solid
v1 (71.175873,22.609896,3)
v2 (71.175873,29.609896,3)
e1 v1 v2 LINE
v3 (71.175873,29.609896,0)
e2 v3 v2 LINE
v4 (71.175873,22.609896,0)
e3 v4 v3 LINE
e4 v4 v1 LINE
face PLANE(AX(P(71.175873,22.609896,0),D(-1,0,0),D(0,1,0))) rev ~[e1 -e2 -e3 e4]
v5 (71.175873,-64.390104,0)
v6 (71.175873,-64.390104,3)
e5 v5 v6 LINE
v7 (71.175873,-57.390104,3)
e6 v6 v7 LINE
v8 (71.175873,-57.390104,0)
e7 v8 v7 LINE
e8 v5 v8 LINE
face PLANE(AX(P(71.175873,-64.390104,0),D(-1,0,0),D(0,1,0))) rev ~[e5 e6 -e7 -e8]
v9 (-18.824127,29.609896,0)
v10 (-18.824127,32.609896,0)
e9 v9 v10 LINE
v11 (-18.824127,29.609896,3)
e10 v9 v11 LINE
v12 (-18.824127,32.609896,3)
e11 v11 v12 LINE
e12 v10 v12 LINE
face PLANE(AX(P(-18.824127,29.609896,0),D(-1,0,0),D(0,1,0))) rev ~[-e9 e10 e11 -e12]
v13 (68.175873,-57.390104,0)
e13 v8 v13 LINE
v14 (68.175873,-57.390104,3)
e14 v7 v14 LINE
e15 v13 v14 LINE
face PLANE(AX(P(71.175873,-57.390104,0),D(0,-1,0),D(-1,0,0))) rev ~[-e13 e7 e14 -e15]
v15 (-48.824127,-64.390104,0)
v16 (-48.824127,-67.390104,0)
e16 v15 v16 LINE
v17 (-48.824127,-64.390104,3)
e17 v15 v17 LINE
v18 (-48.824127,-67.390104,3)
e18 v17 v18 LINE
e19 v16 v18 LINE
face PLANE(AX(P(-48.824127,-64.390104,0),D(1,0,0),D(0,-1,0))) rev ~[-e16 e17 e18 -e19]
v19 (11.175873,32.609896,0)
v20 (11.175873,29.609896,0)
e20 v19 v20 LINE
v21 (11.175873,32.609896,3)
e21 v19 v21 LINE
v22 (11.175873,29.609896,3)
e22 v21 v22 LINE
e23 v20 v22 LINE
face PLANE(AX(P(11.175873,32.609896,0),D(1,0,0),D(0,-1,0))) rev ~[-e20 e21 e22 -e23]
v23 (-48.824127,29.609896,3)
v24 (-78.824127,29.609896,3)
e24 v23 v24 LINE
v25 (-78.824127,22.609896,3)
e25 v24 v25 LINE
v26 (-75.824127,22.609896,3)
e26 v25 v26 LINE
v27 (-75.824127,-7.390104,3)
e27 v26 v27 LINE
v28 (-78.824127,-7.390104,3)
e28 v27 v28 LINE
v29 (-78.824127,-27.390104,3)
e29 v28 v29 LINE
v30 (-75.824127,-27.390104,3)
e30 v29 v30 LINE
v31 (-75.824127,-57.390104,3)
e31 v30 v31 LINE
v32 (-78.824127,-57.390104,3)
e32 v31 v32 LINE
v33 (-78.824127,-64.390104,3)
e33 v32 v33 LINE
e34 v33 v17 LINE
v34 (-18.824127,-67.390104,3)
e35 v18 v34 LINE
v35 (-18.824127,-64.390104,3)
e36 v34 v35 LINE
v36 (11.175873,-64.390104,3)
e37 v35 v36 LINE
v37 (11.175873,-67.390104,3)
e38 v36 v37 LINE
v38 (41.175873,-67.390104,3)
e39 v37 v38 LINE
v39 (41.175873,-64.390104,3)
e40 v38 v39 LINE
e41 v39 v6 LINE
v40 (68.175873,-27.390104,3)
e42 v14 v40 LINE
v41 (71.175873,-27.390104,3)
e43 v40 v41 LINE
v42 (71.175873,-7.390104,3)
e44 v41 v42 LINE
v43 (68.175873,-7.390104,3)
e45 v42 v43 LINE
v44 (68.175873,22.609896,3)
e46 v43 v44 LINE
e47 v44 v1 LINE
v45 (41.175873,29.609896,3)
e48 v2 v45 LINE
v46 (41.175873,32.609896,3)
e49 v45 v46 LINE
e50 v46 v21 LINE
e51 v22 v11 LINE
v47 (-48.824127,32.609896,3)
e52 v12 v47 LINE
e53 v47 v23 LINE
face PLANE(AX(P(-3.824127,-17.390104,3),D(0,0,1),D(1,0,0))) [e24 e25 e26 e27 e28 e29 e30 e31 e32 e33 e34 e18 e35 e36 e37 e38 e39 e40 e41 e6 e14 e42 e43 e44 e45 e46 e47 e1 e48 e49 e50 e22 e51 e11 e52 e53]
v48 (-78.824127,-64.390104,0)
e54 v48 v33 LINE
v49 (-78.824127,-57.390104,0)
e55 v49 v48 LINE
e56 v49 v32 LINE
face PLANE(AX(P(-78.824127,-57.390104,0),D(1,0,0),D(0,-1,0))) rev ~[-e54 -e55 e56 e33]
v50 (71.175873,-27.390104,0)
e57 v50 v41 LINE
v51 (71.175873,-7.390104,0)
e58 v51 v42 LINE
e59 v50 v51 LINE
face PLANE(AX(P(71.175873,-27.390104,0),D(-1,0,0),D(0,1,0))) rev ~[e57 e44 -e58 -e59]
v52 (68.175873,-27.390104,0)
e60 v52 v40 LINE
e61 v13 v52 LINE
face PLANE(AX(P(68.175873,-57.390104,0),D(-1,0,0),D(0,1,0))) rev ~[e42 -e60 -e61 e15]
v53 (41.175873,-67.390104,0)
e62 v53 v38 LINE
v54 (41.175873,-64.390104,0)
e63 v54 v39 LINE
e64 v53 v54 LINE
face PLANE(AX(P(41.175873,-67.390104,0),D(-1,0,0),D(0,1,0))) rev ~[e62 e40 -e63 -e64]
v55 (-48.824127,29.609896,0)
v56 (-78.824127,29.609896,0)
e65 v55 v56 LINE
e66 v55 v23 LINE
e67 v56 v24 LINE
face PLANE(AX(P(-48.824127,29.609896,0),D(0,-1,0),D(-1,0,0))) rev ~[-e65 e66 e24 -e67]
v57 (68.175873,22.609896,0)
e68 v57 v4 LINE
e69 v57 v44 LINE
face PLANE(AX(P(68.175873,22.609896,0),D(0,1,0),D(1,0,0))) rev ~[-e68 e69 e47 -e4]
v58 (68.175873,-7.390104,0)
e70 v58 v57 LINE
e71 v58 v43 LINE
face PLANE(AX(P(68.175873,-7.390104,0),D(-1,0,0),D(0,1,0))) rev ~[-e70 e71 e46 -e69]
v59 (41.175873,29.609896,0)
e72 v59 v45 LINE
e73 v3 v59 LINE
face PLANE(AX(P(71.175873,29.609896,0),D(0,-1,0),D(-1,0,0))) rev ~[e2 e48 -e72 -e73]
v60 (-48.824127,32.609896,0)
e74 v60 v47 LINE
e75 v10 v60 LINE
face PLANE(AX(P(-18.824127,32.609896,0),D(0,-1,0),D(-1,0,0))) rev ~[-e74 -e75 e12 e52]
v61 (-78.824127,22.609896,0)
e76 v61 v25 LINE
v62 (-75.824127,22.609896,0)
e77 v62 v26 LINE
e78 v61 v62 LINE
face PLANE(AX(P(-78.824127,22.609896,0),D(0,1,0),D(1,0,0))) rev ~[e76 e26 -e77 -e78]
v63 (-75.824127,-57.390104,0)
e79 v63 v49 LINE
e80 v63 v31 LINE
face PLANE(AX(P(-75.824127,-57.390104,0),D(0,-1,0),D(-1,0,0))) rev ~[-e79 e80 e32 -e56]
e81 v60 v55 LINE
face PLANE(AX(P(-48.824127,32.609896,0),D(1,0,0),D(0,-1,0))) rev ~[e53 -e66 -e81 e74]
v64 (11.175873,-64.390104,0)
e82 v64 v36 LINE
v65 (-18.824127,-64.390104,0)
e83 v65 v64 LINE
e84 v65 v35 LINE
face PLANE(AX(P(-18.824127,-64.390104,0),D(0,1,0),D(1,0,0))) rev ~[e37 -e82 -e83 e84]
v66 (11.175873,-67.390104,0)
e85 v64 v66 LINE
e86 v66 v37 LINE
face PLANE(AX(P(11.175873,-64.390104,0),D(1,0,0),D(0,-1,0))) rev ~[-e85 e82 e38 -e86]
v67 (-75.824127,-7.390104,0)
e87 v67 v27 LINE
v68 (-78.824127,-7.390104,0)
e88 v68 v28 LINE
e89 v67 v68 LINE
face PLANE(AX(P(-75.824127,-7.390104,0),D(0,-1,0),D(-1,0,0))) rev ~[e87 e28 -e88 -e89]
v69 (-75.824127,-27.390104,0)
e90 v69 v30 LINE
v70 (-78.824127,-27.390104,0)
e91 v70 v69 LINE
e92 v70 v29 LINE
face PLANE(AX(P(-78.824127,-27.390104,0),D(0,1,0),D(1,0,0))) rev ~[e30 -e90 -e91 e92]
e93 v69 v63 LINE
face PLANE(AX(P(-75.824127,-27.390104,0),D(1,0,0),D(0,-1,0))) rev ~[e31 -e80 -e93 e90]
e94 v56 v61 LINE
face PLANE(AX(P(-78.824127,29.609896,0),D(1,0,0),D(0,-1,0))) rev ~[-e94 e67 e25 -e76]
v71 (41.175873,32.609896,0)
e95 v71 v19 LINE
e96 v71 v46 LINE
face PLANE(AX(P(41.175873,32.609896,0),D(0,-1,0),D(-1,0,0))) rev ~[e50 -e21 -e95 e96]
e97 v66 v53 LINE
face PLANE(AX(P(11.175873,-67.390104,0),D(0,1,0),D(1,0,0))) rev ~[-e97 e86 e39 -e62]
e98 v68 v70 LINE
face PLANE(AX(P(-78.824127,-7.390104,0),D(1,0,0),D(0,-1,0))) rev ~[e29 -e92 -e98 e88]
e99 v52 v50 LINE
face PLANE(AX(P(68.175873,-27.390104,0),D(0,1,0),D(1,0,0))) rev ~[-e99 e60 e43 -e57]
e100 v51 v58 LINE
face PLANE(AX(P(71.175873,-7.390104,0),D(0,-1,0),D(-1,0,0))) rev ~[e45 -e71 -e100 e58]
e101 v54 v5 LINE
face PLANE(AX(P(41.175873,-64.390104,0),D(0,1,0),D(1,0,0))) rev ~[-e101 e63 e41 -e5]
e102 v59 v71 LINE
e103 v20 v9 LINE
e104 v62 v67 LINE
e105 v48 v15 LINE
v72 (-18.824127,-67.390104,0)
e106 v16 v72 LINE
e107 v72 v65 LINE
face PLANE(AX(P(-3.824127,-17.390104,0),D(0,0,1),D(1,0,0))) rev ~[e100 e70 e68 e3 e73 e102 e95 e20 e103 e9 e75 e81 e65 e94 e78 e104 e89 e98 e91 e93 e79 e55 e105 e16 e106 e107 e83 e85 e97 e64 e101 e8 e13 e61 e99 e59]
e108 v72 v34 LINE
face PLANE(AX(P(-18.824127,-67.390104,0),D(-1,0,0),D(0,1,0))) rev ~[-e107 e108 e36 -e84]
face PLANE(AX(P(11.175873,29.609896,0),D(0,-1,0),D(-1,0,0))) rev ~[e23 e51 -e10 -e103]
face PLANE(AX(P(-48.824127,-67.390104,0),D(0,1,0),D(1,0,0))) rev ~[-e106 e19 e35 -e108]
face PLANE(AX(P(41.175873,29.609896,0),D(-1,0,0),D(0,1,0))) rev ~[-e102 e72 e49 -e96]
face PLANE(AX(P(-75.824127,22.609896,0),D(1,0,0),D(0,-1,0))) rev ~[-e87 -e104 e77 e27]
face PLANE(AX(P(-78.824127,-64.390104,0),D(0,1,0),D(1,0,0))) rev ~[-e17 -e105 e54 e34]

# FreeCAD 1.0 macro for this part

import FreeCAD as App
import Part
import Sketcher

V = App.Vector
Q = App.Units.Quantity


def add_polygon(sketch, points):
    """Adds a closed chain of lines whose ends are joined by coincident constraints."""
    first, n = sketch.GeometryCount, len(points)
    for a, b in zip(points, points[1:] + points[:1]):
        sketch.addGeometry(Part.LineSegment(App.Vector(*a, 0), App.Vector(*b, 0)), False)
    for i in range(n):
        sketch.addConstraint(Sketcher.Constraint("Coincident", first + i, 2, first + (i + 1) % n, 1))

doc = App.newDocument("Part")
body = doc.addObject("PartDesign::Body", "Body")

# Sketch on XY plane
sketch1 = body.newObject("Sketcher::SketchObject", "Sketch")
sketch1.AttachmentSupport = (doc.getObject("XY_Plane"), [""])
sketch1.MapMode = "FlatFace"
add_polygon(sketch1, [(71.175873, -27.390104), (71.175873, -7.390104), (68.175873, -7.390104), (68.175873, 22.609896), (71.175873, 22.609896), (71.175873, 29.609896), (41.175873, 29.609896), (41.175873, 32.609896), (11.175873, 32.609896), (11.175873, 29.609896), (-18.824127, 29.609896), (-18.824127, 32.609896), (-48.824127, 32.609896), (-48.824127, 29.609896), (-78.824127, 29.609896), (-78.824127, 22.609896), (-75.824127, 22.609896), (-75.824127, -7.390104), (-78.824127, -7.390104), (-78.824127, -27.390104), (-75.824127, -27.390104), (-75.824127, -57.390104), (-78.824127, -57.390104), (-78.824127, -64.390104), (-48.824127, -64.390104), (-48.824127, -67.390104), (-18.824127, -67.390104), (-18.824127, -64.390104), (11.175873, -64.390104), (11.175873, -67.390104), (41.175873, -67.390104), (41.175873, -64.390104), (71.175873, -64.390104), (71.175873, -57.390104), (68.175873, -57.390104), (68.175873, -27.390104)])  # lines 0-35
sketch1.addConstraint([
    Sketcher.Constraint("Vertical", 0),
    Sketcher.Constraint("Horizontal", 1),
    Sketcher.Constraint("Vertical", 2),
    Sketcher.Constraint("Horizontal", 3),
    Sketcher.Constraint("Vertical", 4),
    Sketcher.Constraint("Horizontal", 5),
    Sketcher.Constraint("Vertical", 6),
    Sketcher.Constraint("Horizontal", 7),
    Sketcher.Constraint("Vertical", 8),
    Sketcher.Constraint("Horizontal", 9),
    Sketcher.Constraint("Vertical", 10),
    Sketcher.Constraint("Horizontal", 11),
    Sketcher.Constraint("Vertical", 12),
    Sketcher.Constraint("Horizontal", 13),
    Sketcher.Constraint("Vertical", 14),
    Sketcher.Constraint("Horizontal", 15),
    Sketcher.Constraint("Vertical", 16),
    Sketcher.Constraint("Horizontal", 17),
    Sketcher.Constraint("Vertical", 18),
    Sketcher.Constraint("Horizontal", 19),
    Sketcher.Constraint("Vertical", 20),
    Sketcher.Constraint("Horizontal", 21),
    Sketcher.Constraint("Vertical", 22),
    Sketcher.Constraint("Horizontal", 23),
    Sketcher.Constraint("Vertical", 24),
    Sketcher.Constraint("Horizontal", 25),
    Sketcher.Constraint("Vertical", 26),
    Sketcher.Constraint("Horizontal", 27),
    Sketcher.Constraint("Vertical", 28),
    Sketcher.Constraint("Horizontal", 29),
    Sketcher.Constraint("Vertical", 30),
    Sketcher.Constraint("Horizontal", 31),
    Sketcher.Constraint("Vertical", 32),
    Sketcher.Constraint("Horizontal", 33),
    Sketcher.Constraint("Vertical", 34),
    Sketcher.Constraint("Horizontal", 35),
    Sketcher.Constraint("Horizontal", 5, 2, 8, 2),
    Sketcher.Constraint("Horizontal", 7, 2, 10, 2),
    Sketcher.Constraint("Horizontal", 9, 2, 12, 2),
    Sketcher.Constraint("Horizontal", 3, 2, 14, 2),
    Sketcher.Constraint("Horizontal", 1, 2, 16, 2),
    Sketcher.Constraint("Horizontal", 23, 2, 26, 2),
    Sketcher.Constraint("Horizontal", 25, 2, 28, 2),
    Sketcher.Constraint("Horizontal", 27, 2, 30, 2),
    Sketcher.Constraint("Horizontal", 21, 2, 32, 2),
    Sketcher.Constraint("Horizontal", 19, 2, 34, 2),
    Sketcher.Constraint("Vertical", 0, 2, 3, 2),
    Sketcher.Constraint("Vertical", 14, 2, 17, 2),
    Sketcher.Constraint("Vertical", 16, 2, 19, 2),
    Sketcher.Constraint("Vertical", 18, 2, 21, 2),
    Sketcher.Constraint("Vertical", 12, 2, 23, 2),
    Sketcher.Constraint("Vertical", 10, 2, 25, 2),
    Sketcher.Constraint("Vertical", 8, 2, 27, 2),
    Sketcher.Constraint("Vertical", 6, 2, 29, 2),
    Sketcher.Constraint("Vertical", 4, 2, 31, 2),
    Sketcher.Constraint("Vertical", 2, 2, 33, 2),
    Sketcher.Constraint("Equal", 5, 7),
    Sketcher.Constraint("Equal", 7, 9),
    Sketcher.Constraint("Equal", 9, 11),
    Sketcher.Constraint("Equal", 11, 13),
    Sketcher.Constraint("Equal", 3, 15),
    Sketcher.Constraint("Equal", 31, 2),
    Sketcher.Constraint("Equal", 35, 6),
    Sketcher.Constraint("Equal", 16, 20),
    Sketcher.Constraint("Equal", 14, 22),
    Sketcher.Constraint("Equal", 12, 24),
    Sketcher.Constraint("DistanceX", 1, 2, 1, 1, Q("3 mm")),
    Sketcher.Constraint("DistanceX", 5, 2, 5, 1, Q("30 mm")),
    Sketcher.Constraint("DistanceY", 0, 1, 0, 2, Q("20 mm")),
    Sketcher.Constraint("DistanceY", 4, 1, 4, 2, Q("7 mm")),
    Sketcher.Constraint("DistanceX", -1, 1, 0, 2, Q("71.175873 mm")),
    Sketcher.Constraint("DistanceY", 0, 2, -1, 1, Q("7.390104 mm")),
])
pad1 = body.newObject("PartDesign::Pad", "Pad")
pad1.Profile = sketch1
pad1.Length = 3

doc.recompute()
